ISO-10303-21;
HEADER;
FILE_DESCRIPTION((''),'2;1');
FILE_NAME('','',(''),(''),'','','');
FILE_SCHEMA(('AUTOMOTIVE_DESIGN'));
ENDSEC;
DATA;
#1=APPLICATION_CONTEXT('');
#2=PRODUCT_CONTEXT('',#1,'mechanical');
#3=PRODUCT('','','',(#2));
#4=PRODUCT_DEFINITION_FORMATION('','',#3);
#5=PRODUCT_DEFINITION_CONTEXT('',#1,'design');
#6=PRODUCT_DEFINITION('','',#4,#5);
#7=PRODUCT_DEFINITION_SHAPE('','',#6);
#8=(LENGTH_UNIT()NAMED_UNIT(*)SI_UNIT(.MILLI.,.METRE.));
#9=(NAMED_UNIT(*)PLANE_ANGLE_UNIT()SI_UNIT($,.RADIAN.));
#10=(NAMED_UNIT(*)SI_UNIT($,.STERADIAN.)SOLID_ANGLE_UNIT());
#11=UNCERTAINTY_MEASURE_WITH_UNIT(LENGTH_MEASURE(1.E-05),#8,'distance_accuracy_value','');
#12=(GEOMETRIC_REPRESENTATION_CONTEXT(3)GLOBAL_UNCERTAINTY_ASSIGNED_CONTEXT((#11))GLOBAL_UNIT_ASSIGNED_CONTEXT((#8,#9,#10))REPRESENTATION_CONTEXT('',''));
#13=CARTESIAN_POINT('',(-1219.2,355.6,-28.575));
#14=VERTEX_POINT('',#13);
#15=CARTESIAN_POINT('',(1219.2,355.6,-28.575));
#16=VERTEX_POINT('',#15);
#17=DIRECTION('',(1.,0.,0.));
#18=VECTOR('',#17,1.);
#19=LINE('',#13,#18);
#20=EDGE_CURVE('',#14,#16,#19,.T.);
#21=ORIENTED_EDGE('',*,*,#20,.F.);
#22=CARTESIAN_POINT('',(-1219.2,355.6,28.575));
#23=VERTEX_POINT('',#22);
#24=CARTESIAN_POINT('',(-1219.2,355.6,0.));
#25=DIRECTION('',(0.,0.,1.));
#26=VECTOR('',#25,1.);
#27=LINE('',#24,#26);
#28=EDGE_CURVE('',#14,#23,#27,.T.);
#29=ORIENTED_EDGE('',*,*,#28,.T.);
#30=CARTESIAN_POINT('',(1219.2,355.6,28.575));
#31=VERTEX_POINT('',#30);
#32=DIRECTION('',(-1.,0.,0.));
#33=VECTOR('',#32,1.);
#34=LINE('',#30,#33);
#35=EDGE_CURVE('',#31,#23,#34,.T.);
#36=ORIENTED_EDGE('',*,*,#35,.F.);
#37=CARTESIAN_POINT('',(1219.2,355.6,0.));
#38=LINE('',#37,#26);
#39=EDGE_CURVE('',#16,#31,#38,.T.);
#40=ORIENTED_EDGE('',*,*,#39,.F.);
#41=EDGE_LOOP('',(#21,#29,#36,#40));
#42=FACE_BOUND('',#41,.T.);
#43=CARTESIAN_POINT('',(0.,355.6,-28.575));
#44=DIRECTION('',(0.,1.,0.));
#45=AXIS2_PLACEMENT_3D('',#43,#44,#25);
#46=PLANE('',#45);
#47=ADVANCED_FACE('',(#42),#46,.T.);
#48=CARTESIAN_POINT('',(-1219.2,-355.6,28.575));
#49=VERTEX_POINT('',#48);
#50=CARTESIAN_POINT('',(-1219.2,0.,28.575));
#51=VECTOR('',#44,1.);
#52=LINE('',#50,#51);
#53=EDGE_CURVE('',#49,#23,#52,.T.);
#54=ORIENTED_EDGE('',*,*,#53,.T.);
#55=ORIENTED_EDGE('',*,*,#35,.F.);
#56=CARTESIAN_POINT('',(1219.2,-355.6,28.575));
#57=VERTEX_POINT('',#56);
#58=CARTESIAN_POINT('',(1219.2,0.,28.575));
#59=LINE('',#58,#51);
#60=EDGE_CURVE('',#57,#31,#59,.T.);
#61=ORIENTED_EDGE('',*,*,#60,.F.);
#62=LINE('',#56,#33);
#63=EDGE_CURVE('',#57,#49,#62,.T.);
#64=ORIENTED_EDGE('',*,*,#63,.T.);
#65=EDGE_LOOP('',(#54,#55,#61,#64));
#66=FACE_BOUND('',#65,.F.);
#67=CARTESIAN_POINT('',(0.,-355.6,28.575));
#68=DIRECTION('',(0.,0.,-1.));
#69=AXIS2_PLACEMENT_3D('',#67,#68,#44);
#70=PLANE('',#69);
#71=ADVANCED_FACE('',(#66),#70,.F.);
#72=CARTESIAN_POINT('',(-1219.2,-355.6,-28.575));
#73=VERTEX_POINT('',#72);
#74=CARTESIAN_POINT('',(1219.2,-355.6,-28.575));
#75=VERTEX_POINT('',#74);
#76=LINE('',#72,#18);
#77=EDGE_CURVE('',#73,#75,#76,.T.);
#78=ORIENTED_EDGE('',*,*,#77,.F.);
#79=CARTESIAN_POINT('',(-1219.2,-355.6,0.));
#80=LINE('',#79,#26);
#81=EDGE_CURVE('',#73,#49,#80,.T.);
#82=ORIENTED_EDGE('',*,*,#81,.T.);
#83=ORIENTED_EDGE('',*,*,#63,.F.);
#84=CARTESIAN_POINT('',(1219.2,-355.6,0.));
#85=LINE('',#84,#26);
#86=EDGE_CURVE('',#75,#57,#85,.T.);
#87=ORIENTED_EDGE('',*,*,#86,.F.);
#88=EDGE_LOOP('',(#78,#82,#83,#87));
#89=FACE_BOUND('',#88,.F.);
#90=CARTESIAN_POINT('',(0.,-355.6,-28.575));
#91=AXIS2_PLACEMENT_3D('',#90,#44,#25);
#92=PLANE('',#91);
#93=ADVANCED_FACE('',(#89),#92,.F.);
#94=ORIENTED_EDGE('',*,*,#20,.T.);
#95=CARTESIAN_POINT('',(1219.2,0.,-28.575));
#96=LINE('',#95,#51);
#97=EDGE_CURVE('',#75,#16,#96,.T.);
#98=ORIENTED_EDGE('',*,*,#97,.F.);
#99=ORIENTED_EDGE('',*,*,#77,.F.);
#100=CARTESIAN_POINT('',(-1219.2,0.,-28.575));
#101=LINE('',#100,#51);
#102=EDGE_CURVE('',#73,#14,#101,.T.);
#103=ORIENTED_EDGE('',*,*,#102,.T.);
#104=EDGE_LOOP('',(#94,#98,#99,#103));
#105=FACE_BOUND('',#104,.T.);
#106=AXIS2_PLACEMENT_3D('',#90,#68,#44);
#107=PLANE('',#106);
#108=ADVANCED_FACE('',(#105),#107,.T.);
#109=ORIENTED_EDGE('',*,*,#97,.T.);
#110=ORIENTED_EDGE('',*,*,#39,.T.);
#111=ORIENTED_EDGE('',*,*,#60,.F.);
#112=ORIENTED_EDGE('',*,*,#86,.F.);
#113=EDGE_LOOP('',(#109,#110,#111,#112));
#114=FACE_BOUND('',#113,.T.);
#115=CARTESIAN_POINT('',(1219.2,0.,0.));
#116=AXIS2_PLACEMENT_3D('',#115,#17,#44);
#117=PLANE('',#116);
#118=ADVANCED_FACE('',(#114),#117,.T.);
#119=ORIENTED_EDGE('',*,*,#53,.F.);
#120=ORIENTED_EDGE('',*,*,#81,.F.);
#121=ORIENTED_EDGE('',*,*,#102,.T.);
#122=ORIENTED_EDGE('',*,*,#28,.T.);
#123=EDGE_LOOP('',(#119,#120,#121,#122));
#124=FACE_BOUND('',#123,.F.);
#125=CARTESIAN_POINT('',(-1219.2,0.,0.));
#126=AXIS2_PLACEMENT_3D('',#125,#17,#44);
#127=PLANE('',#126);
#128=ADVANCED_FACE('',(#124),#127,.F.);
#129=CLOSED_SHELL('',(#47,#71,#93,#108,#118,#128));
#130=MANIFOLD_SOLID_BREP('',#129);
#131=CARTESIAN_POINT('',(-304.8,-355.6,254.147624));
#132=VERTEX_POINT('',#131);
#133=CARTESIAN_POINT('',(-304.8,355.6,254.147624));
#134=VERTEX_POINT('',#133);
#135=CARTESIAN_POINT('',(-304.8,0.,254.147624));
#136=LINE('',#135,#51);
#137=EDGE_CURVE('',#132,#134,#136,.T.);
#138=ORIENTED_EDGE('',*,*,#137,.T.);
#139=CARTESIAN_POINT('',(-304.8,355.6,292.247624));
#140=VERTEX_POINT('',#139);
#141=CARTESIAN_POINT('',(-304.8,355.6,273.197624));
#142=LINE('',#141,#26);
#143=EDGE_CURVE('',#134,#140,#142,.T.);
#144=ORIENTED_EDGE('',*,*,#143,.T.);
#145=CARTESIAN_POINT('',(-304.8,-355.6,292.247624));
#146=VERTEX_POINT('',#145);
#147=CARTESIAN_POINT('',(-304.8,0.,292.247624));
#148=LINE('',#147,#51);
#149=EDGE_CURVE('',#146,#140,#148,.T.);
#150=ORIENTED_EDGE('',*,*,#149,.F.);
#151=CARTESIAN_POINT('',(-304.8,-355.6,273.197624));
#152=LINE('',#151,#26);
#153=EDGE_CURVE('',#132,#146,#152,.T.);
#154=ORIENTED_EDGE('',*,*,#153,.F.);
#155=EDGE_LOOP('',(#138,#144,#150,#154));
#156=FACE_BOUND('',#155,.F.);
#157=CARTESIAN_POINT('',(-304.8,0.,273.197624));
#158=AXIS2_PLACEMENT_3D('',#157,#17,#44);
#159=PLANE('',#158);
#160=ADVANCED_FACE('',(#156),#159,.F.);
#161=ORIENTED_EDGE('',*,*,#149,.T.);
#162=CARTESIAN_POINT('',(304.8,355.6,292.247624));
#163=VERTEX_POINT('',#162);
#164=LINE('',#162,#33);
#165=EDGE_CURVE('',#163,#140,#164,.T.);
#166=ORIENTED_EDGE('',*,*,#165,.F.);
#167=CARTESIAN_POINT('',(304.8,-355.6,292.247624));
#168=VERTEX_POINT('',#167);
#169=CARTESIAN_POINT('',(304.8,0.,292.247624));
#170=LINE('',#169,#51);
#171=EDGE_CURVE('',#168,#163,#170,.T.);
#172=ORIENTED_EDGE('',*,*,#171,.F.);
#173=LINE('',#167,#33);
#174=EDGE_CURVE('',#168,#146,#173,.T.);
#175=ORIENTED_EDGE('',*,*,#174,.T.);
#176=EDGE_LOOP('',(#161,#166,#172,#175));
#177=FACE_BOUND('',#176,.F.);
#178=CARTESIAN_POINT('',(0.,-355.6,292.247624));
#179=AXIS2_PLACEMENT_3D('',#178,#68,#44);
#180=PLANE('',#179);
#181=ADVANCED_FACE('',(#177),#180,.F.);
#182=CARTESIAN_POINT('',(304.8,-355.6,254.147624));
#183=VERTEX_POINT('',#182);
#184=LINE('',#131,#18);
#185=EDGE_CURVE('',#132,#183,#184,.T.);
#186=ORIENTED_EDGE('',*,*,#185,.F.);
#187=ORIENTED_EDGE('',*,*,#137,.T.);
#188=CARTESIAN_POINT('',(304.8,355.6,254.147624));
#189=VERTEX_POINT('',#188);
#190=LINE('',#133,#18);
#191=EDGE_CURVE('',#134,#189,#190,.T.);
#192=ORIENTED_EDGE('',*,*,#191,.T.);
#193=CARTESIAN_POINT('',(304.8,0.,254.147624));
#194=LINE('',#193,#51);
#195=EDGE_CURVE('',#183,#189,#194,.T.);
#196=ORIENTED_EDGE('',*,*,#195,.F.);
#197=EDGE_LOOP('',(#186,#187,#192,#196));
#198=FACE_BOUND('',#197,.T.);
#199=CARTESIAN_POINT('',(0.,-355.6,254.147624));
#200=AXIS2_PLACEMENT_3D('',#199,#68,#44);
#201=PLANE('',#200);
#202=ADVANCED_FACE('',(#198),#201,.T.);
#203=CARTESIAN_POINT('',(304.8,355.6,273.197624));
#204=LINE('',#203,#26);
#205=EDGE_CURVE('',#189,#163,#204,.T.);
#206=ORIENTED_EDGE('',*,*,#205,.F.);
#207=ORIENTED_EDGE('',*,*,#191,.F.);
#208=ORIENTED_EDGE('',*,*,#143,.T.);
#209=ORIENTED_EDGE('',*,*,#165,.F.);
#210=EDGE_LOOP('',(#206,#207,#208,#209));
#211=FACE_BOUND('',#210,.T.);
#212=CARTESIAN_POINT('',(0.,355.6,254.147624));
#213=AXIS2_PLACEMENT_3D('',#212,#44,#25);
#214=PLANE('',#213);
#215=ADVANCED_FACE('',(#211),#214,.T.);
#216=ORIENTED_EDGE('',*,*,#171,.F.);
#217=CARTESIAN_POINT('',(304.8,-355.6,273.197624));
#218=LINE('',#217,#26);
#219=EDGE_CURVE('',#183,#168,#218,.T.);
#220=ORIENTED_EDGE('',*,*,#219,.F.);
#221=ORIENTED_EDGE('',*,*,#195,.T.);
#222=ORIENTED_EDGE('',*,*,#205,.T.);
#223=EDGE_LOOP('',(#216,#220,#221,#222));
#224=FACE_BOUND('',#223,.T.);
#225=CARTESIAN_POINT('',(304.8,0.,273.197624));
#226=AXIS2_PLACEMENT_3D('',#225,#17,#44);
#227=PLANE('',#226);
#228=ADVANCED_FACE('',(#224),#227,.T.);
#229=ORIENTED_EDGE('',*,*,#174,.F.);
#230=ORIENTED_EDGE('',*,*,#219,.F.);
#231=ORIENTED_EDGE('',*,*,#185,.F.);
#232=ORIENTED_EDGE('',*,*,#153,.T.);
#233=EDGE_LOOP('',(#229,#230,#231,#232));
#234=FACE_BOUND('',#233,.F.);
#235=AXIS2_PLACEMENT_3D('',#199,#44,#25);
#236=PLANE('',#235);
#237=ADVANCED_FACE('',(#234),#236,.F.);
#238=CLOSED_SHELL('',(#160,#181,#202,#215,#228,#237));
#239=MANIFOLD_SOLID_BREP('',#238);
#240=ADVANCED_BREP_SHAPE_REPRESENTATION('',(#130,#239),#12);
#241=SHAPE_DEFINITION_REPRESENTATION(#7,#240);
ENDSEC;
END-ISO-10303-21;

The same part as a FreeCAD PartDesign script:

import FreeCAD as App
import Part
import Sketcher

V = App.Vector
Q = App.Units.Quantity


def add_polygon(sketch, points):
    """Adds a closed chain of lines whose ends are joined by coincident constraints."""
    first, n = sketch.GeometryCount, len(points)
    for a, b in zip(points, points[1:] + points[:1]):
        sketch.addGeometry(Part.LineSegment(App.Vector(*a, 0), App.Vector(*b, 0)), False)
    for i in range(n):
        sketch.addConstraint(Sketcher.Constraint("Coincident", first + i, 2, first + (i + 1) % n, 1))

doc = App.newDocument("Part")
body = doc.addObject("PartDesign::Body", "Body")

# Sketch on YZ plane
sketch1 = body.newObject("Sketcher::SketchObject", "Sketch")
sketch1.AttachmentSupport = (doc.getObject("YZ_Plane"), [""])
sketch1.MapMode = "FlatFace"
add_polygon(sketch1, [(-356, 29), (-356, -29), (356, -29), (356, 29)])  # lines 0-3
sketch1.addConstraint([
    Sketcher.Constraint("Vertical", 0),
    Sketcher.Constraint("Horizontal", 1),
    Sketcher.Constraint("Vertical", 2),
    Sketcher.Constraint("Horizontal", 3),
    Sketcher.Constraint("Symmetric", 0, 2, 2, 2, -1, 1),
    Sketcher.Constraint("DistanceX", 1, 1, 1, 2, Q("28 in")),
    Sketcher.Constraint("DistanceY", 0, 2, 0, 1, Q("2.25 in")),
])
pad1 = body.newObject("PartDesign::Pad", "Pad")
pad1.Profile = sketch1
pad1.Length = Q("96 in")
pad1.Midplane = True
body2 = doc.addObject("PartDesign::Body", "Body001")

# Sketch on YZ plane
sketch2 = body2.newObject("Sketcher::SketchObject", "Sketch001")
sketch2.AttachmentSupport = (doc.getObject("YZ_Plane001"), [""])
sketch2.MapMode = "FlatFace"
add_polygon(sketch2, [(-356, 292), (-356, 254), (356, 254), (356, 292)])  # lines 0-3
sketch2.addConstraint([
    Sketcher.Constraint("Vertical", 0),
    Sketcher.Constraint("Horizontal", 1),
    Sketcher.Constraint("Vertical", 2),
    Sketcher.Constraint("Horizontal", 3),
    Sketcher.Constraint("DistanceX", 1, 1, 1, 2, Q("28 in")),
    Sketcher.Constraint("DistanceY", 0, 2, 0, 1, Q("1.5 in")),
    Sketcher.Constraint("DistanceX", 0, 2, -1, 1, Q("14 in")),
    Sketcher.Constraint("DistanceY", -1, 1, 0, 2, Q("254.147624 mm")),
])
pad2 = body2.newObject("PartDesign::Pad", "Pad001")
pad2.Profile = sketch2
pad2.Length = Q("24 in")
pad2.Midplane = True

doc.recompute()
